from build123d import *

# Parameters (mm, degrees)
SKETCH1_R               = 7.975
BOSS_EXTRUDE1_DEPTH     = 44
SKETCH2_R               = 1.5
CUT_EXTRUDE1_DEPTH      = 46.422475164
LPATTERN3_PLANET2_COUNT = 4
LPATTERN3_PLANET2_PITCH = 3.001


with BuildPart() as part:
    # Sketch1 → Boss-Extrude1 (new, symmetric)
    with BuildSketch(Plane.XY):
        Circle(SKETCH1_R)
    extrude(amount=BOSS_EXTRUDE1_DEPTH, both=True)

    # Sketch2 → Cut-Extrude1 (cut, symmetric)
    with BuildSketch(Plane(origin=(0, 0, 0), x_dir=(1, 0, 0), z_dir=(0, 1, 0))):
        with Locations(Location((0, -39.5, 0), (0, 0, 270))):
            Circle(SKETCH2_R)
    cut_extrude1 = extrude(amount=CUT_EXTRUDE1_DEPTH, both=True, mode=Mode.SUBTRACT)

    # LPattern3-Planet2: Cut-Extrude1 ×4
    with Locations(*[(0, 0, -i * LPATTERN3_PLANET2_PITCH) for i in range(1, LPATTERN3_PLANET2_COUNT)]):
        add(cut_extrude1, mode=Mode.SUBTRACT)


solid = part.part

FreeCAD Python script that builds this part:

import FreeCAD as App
import Part
import Sketcher
from FreeCAD import Vector

doc = App.newDocument("Part")
params = doc.addObject("Spreadsheet::Sheet", "Params")
for row, (alias, value) in enumerate([
    ("sketch1_diameter", "15.95 mm"),
    ("pad1_length", "88 mm"),
    ("sketch2_diameter", "3 mm"),
    ("pocket1_length", "92.84495 mm"),
    ("linearpattern_pitch", "3.001 mm"),
], start=1):
    params.set(f"A{row}", alias)
    params.set(f"B{row}", "=" + value)
    params.setAlias(f"B{row}", alias)

body = doc.addObject("PartDesign::Body", "Body")

# Sketch on XY plane
sketch1 = body.newObject("Sketcher::SketchObject", "Sketch")
sketch1.AttachmentSupport = (doc.getObject("XY_Plane"), [""])
sketch1.MapMode = "FlatFace"
sketch1.addGeometry(Part.Circle(Vector(0, 0, 0), Vector(0, 0, 1), 8), False)
sketch1.addConstraint(Sketcher.Constraint("Coincident", 0, 3, -1, 1))
sketch1.addConstraint(Sketcher.Constraint("Diameter", 0, 15.95))
sketch1.setExpression("Constraints[1]", "Params.sketch1_diameter")
pad1 = body.newObject("PartDesign::Pad", "Pad")
pad1.Profile = sketch1
pad1.setExpression("Length", "Params.pad1_length")
pad1.Midplane = True

# Sketch on XZ plane
sketch2 = body.newObject("Sketcher::SketchObject", "Sketch001")
sketch2.AttachmentSupport = (doc.getObject("XZ_Plane"), [""])
sketch2.MapMode = "FlatFace"
sketch2.addGeometry(Part.Circle(Vector(0, 39.5, 0), Vector(0, 0, 1), 1.5), False)
sketch2.addConstraint(Sketcher.Constraint("PointOnObject", 0, 3, -2))
sketch2.addConstraint(Sketcher.Constraint("Diameter", 0, 3.0))
sketch2.addConstraint(Sketcher.Constraint("DistanceY", -1, 1, 0, 3, 39.5))
sketch2.setExpression("Constraints[1]", "Params.sketch2_diameter")
pocket1 = body.newObject("PartDesign::Pocket", "Pocket")
pocket1.Profile = sketch2
pocket1.setExpression("Length", "Params.pocket1_length")
pocket1.Midplane = True
doc.recompute()

linearpattern = body.newObject("PartDesign::LinearPattern", "LinearPattern")
linearpattern.Originals = [pocket1]
linearpattern.Direction = (doc.getObject("Z_Axis"), [""])
linearpattern.Mode = "offset"
linearpattern.setExpression("Offset", "Params.linearpattern_pitch")
linearpattern.Occurrences = 4
linearpattern.Reversed = True
body.Tip = linearpattern

doc.recompute()
